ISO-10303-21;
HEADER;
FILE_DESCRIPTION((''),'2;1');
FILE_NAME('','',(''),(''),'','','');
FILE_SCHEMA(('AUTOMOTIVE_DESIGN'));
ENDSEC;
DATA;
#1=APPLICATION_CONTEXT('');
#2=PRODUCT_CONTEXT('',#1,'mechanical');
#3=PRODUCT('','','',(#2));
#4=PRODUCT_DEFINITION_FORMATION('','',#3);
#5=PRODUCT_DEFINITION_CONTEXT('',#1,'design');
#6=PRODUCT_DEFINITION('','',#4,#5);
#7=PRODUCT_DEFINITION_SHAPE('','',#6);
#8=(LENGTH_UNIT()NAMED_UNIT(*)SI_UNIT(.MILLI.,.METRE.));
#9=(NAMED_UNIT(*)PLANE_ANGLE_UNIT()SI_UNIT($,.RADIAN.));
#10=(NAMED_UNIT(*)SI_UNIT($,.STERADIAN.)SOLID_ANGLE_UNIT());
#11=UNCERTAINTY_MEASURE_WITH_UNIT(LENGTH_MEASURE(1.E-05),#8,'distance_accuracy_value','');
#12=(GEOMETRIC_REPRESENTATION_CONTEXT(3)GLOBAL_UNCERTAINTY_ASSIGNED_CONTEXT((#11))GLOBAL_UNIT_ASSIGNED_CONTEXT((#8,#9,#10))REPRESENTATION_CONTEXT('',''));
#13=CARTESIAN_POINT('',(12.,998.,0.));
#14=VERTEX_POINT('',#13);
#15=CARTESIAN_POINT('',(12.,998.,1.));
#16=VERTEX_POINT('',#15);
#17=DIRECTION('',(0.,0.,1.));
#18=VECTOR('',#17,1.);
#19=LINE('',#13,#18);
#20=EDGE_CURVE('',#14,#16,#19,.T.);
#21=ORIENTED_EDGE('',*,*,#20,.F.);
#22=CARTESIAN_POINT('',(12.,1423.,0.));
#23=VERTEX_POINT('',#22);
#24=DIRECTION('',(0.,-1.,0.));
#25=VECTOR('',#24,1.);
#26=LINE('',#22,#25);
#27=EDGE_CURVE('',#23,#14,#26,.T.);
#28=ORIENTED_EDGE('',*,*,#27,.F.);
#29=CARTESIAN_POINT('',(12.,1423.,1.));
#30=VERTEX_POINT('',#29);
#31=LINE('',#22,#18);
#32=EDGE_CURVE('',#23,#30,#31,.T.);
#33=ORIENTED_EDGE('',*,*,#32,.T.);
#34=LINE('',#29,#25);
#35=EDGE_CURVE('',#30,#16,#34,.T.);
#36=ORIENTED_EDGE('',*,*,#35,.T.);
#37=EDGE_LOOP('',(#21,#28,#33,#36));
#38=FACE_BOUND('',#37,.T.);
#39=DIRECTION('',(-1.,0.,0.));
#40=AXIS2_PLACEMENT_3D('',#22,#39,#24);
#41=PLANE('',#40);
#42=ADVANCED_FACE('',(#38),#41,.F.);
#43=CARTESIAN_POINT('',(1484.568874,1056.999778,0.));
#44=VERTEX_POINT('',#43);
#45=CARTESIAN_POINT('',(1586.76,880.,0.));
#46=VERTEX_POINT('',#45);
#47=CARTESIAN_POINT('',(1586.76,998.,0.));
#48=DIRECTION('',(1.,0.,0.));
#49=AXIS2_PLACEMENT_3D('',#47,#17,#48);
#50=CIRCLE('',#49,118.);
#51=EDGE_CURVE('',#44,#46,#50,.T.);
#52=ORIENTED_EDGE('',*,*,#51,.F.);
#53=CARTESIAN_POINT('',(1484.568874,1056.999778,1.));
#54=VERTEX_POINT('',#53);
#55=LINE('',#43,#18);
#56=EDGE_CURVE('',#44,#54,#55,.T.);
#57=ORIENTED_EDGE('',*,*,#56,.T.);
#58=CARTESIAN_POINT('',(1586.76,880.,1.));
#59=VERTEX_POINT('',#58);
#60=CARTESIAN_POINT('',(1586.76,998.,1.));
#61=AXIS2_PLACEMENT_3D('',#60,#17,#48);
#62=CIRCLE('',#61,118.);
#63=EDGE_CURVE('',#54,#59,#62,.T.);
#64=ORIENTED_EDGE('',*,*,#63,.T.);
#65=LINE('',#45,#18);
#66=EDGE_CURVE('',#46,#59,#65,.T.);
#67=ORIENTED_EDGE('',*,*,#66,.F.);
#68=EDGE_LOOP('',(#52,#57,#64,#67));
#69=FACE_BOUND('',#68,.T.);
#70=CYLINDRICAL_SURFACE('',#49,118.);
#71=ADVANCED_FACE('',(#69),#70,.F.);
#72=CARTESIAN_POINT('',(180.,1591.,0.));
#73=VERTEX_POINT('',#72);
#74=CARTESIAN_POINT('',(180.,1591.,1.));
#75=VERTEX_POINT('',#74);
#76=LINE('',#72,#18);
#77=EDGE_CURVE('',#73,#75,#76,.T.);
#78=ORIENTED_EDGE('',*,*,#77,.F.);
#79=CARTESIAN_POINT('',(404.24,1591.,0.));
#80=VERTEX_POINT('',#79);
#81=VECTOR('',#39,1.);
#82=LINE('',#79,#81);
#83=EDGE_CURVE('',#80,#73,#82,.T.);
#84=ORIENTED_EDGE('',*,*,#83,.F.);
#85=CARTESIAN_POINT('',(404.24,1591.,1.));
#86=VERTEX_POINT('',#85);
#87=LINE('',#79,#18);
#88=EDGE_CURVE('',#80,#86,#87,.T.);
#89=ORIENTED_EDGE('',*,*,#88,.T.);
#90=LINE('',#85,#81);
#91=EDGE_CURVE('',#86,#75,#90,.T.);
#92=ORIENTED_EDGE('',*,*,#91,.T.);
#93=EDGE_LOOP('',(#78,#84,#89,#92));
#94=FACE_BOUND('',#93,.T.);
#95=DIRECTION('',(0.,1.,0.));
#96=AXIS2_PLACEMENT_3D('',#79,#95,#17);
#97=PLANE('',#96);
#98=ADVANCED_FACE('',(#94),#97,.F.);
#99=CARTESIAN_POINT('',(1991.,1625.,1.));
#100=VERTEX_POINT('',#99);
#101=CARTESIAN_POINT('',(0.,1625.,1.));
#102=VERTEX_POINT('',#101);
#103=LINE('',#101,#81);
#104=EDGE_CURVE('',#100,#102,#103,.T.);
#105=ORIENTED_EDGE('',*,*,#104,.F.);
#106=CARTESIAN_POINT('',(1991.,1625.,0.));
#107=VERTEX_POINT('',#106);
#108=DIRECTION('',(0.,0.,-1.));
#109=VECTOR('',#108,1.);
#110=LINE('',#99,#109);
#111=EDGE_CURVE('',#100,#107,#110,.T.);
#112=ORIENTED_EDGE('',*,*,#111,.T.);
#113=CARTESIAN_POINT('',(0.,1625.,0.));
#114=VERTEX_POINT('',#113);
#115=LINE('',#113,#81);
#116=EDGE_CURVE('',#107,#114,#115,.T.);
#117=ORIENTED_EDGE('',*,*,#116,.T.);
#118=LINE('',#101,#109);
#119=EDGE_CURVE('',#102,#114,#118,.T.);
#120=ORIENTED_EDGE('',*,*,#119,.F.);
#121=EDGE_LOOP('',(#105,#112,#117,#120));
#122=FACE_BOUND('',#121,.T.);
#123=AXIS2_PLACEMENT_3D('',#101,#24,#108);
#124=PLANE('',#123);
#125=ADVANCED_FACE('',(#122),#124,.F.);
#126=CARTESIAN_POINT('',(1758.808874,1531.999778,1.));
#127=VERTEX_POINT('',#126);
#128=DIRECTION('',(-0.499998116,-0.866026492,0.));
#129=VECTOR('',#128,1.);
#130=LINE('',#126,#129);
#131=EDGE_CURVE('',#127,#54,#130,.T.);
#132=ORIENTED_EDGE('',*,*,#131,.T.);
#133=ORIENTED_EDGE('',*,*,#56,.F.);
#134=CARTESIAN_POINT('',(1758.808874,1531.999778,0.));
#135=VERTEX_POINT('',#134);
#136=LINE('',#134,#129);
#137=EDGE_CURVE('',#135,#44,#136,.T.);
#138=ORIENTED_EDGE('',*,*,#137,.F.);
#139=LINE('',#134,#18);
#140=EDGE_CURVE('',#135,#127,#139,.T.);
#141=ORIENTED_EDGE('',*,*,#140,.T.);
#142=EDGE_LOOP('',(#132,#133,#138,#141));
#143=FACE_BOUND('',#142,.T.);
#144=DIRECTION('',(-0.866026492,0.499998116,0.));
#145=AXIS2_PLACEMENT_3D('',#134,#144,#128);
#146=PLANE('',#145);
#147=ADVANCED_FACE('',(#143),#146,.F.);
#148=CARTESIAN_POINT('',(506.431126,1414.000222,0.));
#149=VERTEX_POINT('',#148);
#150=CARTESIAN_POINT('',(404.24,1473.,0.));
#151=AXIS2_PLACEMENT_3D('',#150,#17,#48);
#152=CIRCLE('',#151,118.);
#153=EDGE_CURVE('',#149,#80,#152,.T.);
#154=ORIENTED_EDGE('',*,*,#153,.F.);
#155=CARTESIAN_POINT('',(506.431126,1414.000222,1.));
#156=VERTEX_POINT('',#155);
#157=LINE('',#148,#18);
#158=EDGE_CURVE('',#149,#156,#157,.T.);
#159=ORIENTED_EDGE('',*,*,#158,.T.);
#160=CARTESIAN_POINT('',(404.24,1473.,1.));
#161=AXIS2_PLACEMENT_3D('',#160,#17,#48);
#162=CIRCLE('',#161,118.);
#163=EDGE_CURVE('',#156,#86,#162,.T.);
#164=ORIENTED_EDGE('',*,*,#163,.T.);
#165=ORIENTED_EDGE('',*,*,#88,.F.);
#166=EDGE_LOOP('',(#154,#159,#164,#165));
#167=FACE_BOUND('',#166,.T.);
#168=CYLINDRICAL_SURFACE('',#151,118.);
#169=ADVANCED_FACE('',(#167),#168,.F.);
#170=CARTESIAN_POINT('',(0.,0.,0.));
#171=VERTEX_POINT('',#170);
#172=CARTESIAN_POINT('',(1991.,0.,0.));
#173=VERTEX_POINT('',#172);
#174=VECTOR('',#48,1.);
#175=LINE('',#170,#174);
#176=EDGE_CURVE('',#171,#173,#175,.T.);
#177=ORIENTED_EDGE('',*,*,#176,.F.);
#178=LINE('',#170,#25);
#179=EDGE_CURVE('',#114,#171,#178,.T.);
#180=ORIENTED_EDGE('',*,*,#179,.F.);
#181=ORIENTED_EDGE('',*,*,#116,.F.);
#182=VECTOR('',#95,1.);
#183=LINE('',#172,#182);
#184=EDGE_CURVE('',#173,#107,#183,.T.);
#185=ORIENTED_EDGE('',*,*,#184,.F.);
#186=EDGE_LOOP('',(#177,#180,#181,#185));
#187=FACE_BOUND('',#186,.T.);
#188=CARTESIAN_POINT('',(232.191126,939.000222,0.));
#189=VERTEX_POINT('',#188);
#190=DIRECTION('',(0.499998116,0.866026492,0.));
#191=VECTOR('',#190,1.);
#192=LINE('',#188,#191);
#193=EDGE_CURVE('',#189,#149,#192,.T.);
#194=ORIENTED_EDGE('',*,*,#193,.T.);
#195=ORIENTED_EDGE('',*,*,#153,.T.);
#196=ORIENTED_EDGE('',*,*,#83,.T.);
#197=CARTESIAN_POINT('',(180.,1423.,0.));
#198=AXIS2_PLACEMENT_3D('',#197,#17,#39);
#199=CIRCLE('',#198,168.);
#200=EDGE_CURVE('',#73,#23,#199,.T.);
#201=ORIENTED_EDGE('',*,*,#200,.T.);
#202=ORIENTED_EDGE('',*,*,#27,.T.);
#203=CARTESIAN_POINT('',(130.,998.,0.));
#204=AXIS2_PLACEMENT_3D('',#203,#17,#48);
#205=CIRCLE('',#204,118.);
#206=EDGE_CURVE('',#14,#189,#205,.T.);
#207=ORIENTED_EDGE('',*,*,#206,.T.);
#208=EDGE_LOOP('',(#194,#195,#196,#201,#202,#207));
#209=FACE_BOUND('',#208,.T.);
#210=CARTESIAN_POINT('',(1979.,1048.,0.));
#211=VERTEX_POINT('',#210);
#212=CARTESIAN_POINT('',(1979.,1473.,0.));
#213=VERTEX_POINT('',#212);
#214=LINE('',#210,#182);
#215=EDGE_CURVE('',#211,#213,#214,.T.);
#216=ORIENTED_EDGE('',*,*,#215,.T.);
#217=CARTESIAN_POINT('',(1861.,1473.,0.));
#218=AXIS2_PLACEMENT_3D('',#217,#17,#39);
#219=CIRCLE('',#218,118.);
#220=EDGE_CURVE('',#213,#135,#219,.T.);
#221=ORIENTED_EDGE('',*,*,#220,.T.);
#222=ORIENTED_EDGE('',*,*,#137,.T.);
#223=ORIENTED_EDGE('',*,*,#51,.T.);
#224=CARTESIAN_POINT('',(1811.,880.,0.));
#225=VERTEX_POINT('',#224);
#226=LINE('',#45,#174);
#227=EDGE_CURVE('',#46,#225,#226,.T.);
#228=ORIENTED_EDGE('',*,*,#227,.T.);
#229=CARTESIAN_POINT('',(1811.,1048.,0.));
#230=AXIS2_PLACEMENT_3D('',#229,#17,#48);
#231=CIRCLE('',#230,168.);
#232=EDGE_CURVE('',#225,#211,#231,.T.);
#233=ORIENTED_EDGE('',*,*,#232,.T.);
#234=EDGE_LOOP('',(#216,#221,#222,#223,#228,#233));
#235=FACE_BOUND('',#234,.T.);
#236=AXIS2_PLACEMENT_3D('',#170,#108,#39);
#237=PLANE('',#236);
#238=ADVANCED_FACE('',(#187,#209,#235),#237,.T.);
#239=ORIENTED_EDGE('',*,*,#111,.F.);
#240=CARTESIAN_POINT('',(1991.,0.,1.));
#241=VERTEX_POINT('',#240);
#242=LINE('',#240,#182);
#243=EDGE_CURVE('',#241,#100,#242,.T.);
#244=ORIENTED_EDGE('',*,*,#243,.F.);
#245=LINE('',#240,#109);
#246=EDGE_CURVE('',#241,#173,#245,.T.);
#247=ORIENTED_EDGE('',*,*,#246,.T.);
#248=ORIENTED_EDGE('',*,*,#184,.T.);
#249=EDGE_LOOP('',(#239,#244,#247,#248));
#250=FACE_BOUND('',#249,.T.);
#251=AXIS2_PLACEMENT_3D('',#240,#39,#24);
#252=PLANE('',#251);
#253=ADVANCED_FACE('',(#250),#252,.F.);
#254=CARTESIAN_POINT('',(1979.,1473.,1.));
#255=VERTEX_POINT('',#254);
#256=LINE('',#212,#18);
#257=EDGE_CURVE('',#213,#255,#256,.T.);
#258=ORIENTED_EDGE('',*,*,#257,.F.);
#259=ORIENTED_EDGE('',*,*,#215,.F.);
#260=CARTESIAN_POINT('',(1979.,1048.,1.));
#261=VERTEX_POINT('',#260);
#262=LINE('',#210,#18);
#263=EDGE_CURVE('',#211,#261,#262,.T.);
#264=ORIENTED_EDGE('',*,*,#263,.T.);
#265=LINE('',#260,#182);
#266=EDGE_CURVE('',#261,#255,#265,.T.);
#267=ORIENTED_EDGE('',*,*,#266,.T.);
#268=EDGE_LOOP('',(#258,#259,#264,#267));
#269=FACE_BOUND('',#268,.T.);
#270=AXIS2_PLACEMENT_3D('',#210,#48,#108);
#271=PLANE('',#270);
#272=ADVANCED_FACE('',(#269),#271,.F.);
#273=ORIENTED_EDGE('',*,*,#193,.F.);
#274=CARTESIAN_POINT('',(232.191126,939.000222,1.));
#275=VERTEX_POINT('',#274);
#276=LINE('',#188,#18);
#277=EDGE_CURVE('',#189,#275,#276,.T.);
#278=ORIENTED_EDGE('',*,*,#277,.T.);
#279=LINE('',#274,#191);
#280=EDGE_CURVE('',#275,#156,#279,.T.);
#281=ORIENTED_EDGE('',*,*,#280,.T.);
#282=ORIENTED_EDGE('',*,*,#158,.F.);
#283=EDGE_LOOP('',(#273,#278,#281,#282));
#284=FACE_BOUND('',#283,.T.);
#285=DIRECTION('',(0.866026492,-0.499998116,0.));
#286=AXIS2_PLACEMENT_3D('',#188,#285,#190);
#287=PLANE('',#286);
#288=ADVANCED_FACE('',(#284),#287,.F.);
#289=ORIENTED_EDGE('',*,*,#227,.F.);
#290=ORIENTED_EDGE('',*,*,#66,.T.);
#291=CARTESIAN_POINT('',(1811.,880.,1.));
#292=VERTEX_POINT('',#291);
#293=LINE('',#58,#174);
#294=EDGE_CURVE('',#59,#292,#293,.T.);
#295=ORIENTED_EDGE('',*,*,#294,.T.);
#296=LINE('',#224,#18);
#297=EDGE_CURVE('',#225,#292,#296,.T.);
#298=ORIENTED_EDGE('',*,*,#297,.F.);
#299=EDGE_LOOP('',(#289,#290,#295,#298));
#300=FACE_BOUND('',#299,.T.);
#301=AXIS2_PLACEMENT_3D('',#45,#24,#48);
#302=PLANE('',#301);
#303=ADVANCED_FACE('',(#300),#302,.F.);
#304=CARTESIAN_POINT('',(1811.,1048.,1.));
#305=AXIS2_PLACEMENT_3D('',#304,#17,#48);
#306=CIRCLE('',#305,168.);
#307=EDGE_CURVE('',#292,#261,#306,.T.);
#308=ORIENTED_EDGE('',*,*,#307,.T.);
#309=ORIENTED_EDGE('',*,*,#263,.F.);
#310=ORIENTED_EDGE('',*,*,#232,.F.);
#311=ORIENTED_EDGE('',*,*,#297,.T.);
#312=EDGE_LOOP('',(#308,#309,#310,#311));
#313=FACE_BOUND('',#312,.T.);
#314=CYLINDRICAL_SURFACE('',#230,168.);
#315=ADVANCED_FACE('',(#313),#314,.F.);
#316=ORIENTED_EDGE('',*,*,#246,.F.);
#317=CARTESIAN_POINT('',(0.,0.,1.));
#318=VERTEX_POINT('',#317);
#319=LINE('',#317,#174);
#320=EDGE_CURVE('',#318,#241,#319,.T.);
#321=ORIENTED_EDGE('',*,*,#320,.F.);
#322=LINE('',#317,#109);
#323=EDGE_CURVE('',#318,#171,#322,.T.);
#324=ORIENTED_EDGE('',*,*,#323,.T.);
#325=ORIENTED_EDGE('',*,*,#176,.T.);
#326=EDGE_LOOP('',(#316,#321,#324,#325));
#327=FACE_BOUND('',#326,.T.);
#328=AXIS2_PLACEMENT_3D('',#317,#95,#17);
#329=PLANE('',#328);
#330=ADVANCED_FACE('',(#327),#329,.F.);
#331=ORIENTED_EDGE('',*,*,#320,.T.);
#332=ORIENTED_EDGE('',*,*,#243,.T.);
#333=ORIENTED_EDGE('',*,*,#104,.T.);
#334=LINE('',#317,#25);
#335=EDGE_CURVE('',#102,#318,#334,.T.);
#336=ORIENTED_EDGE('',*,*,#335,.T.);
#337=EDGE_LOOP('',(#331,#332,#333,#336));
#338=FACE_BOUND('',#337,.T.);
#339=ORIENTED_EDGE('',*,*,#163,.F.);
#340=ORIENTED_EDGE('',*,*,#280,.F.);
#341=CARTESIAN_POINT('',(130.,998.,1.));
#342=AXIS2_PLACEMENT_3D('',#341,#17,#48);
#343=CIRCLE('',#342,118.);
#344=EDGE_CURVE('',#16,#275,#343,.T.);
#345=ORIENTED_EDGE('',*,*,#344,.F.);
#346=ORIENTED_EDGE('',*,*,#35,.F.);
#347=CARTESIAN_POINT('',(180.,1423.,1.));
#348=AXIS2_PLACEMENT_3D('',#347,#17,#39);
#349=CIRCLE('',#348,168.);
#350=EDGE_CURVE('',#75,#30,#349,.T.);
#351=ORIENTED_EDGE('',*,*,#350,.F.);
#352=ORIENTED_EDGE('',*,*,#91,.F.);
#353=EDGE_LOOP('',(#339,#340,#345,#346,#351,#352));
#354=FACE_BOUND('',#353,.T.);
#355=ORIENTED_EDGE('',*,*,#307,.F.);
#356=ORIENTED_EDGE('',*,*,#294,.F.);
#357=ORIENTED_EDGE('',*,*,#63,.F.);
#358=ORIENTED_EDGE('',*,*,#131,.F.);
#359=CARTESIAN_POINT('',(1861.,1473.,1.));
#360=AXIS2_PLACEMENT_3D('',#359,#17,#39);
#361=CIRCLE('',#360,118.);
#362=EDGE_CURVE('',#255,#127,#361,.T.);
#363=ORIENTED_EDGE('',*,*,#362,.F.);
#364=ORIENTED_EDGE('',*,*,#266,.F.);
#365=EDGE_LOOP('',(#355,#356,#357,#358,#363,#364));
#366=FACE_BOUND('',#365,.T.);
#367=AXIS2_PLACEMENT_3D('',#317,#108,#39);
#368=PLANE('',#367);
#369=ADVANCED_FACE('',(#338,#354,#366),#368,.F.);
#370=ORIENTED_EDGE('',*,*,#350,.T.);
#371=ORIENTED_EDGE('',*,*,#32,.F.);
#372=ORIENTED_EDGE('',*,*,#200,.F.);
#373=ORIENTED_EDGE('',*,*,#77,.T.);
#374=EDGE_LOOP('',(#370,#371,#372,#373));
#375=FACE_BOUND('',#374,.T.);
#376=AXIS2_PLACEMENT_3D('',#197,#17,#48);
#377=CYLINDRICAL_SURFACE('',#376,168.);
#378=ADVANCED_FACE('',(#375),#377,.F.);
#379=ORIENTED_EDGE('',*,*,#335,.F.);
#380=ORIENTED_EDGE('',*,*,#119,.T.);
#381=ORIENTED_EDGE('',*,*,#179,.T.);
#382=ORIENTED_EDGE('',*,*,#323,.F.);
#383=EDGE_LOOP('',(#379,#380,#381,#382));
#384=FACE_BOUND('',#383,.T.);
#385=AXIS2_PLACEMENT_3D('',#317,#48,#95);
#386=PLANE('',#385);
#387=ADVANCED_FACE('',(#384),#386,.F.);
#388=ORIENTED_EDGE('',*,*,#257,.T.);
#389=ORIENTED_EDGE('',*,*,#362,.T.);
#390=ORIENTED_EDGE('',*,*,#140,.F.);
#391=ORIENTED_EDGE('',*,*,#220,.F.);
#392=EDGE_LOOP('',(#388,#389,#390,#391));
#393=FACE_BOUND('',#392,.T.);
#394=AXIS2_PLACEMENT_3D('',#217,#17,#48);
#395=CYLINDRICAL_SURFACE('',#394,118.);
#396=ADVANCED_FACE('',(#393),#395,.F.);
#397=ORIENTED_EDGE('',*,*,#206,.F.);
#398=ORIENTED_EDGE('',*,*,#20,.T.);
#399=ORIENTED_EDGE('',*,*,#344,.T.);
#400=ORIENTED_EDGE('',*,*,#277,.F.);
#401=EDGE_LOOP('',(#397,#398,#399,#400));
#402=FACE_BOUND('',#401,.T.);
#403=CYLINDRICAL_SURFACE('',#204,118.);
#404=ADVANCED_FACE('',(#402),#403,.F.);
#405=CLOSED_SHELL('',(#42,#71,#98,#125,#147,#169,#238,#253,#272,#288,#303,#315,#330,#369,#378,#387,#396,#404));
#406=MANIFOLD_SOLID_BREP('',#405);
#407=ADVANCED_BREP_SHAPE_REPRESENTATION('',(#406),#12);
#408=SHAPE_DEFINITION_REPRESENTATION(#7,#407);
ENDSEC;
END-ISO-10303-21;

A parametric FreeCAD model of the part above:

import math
import FreeCAD as App
import Part
import Sketcher
from FreeCAD import Vector
Q = App.Units.Quantity


def add_polygon(sketch, points):
    """Adds a closed chain of lines whose ends are joined by coincident constraints."""
    first, n = sketch.GeometryCount, len(points)
    for a, b in zip(points, points[1:] + points[:1]):
        sketch.addGeometry(Part.LineSegment(App.Vector(*a, 0), App.Vector(*b, 0)), False)
    for i in range(n):
        sketch.addConstraint(Sketcher.Constraint("Coincident", first + i, 2, first + (i + 1) % n, 1))

doc = App.newDocument("Part")
body = doc.addObject("PartDesign::Body", "Body")

# Sketch on XY plane
sketch1 = doc.addObject("Sketcher::SketchObject", "Sketch")
body.addObject(sketch1)
sketch1.AttachmentSupport = (doc.XY_Plane, [""])
sketch1.MapMode = "FlatFace"
add_polygon(sketch1, [(0, 1625), (0, 0), (1991, 0), (1991, 1625)])  # lines 0-3
sketch1.addConstraint([
    Sketcher.Constraint("Vertical", 0),
    Sketcher.Constraint("Horizontal", 1),
    Sketcher.Constraint("Vertical", 2),
    Sketcher.Constraint("Horizontal", 3),
    Sketcher.Constraint("Coincident", 0, 2, -1, 1),
    Sketcher.Constraint("DistanceX", 1, 1, 1, 2, Q("1991 mm")),
    Sketcher.Constraint("DistanceY", 0, 2, 0, 1, Q("1625 mm")),
])
pad1 = doc.addObject("PartDesign::Pad", "Pad")
body.addObject(pad1)
pad1.Profile = sketch1
pad1.Length = 1

# Sketch on XY plane
sketch2 = doc.addObject("Sketcher::SketchObject", "Sketch001")
body.addObject(sketch2)
sketch2.AttachmentSupport = (doc.XY_Plane, [""])
sketch2.MapMode = "FlatFace"
sketch2.AttachmentOffset = App.Placement(Vector(0, 0, 1), App.Rotation())
sketch2.addGeometry([
    Part.LineSegment(Vector(1758.808874, 1531.999778, 0), Vector(1484.568874, 1056.999778, 0)),  # 0
    Part.ArcOfCircle(Part.Circle(Vector(1586.76, 998, 0), Vector(0, 0, 1), 118), math.radians(150.000125), math.radians(270)),  # 1
    Part.LineSegment(Vector(1586.76, 880, 0), Vector(1811, 880, 0)),  # 2
    Part.ArcOfCircle(Part.Circle(Vector(1811, 1048, 0), Vector(0, 0, 1), 168), math.radians(-90), math.radians(0)),  # 3
    Part.LineSegment(Vector(1979, 1048, 0), Vector(1979, 1473, 0)),  # 4
    Part.ArcOfCircle(Part.Circle(Vector(1861, 1473, 0), Vector(0, 0, 1), 118), math.radians(0), math.radians(150.000125)),  # 5
    Part.LineSegment(Vector(12, 1423, 0), Vector(12, 998, 0)),  # 6
    Part.ArcOfCircle(Part.Circle(Vector(130, 998, 0), Vector(0, 0, 1), 118), math.radians(180), math.radians(330.000125)),  # 7
    Part.LineSegment(Vector(232.191126, 939.000222, 0), Vector(506.431126, 1414.000222, 0)),  # 8
    Part.ArcOfCircle(Part.Circle(Vector(404.24, 1473, 0), Vector(0, 0, 1), 118), math.radians(-29.999875), math.radians(90)),  # 9
    Part.LineSegment(Vector(404.24, 1591, 0), Vector(180, 1591, 0)),  # 10
    Part.ArcOfCircle(Part.Circle(Vector(180, 1423, 0), Vector(0, 0, 1), 168), math.radians(90), math.radians(180)),  # 11
], False)
sketch2.addConstraint([
    Sketcher.Constraint("Tangent", 0, 2, 1, 1),
    Sketcher.Constraint("Tangent", 1, 2, 2, 1),
    Sketcher.Constraint("Tangent", 2, 2, 3, 1),
    Sketcher.Constraint("Tangent", 3, 2, 4, 1),
    Sketcher.Constraint("Tangent", 4, 2, 5, 1),
    Sketcher.Constraint("Tangent", 5, 2, 0, 1),
    Sketcher.Constraint("Tangent", 6, 2, 7, 1),
    Sketcher.Constraint("Tangent", 7, 2, 8, 1),
    Sketcher.Constraint("Tangent", 8, 2, 9, 1),
    Sketcher.Constraint("Tangent", 9, 2, 10, 1),
    Sketcher.Constraint("Tangent", 10, 2, 11, 1),
    Sketcher.Constraint("Tangent", 11, 2, 6, 1),
    Sketcher.Constraint("Horizontal", 2),
    Sketcher.Constraint("Vertical", 4),
    Sketcher.Constraint("Vertical", 6),
    Sketcher.Constraint("Horizontal", 10),
    Sketcher.Constraint("Equal", 1, 5),
    Sketcher.Constraint("Equal", 5, 7),
    Sketcher.Constraint("Equal", 7, 9),
    Sketcher.Constraint("Equal", 3, 11),
    Sketcher.Constraint("Parallel", 0, 8),
    Sketcher.Constraint("Horizontal", 1, 3, 7, 3),
    Sketcher.Constraint("Horizontal", 5, 3, 9, 3),
    Sketcher.Constraint("Radius", 1, Q("118 mm")),
    Sketcher.Constraint("Radius", 3, Q("168 mm")),
    Sketcher.Constraint("DistanceY", 4, 1, 4, 2, Q("425 mm")),
    Sketcher.Constraint("DistanceY", -1, 1, 1, 3, Q("998 mm")),
    Sketcher.Constraint("DistanceX", -1, 1, 3, 3, Q("1811 mm")),
    Sketcher.Constraint("DistanceX", -1, 1, 7, 3, Q("130 mm")),
    Sketcher.Constraint("DistanceX", 2, 1, 2, 2, Q("224.24 mm")),
])
pocket1 = doc.addObject("PartDesign::Pocket", "Pocket")
body.addObject(pocket1)
pocket1.Profile = sketch2
pocket1.Type = "ThroughAll"

doc.recompute()
